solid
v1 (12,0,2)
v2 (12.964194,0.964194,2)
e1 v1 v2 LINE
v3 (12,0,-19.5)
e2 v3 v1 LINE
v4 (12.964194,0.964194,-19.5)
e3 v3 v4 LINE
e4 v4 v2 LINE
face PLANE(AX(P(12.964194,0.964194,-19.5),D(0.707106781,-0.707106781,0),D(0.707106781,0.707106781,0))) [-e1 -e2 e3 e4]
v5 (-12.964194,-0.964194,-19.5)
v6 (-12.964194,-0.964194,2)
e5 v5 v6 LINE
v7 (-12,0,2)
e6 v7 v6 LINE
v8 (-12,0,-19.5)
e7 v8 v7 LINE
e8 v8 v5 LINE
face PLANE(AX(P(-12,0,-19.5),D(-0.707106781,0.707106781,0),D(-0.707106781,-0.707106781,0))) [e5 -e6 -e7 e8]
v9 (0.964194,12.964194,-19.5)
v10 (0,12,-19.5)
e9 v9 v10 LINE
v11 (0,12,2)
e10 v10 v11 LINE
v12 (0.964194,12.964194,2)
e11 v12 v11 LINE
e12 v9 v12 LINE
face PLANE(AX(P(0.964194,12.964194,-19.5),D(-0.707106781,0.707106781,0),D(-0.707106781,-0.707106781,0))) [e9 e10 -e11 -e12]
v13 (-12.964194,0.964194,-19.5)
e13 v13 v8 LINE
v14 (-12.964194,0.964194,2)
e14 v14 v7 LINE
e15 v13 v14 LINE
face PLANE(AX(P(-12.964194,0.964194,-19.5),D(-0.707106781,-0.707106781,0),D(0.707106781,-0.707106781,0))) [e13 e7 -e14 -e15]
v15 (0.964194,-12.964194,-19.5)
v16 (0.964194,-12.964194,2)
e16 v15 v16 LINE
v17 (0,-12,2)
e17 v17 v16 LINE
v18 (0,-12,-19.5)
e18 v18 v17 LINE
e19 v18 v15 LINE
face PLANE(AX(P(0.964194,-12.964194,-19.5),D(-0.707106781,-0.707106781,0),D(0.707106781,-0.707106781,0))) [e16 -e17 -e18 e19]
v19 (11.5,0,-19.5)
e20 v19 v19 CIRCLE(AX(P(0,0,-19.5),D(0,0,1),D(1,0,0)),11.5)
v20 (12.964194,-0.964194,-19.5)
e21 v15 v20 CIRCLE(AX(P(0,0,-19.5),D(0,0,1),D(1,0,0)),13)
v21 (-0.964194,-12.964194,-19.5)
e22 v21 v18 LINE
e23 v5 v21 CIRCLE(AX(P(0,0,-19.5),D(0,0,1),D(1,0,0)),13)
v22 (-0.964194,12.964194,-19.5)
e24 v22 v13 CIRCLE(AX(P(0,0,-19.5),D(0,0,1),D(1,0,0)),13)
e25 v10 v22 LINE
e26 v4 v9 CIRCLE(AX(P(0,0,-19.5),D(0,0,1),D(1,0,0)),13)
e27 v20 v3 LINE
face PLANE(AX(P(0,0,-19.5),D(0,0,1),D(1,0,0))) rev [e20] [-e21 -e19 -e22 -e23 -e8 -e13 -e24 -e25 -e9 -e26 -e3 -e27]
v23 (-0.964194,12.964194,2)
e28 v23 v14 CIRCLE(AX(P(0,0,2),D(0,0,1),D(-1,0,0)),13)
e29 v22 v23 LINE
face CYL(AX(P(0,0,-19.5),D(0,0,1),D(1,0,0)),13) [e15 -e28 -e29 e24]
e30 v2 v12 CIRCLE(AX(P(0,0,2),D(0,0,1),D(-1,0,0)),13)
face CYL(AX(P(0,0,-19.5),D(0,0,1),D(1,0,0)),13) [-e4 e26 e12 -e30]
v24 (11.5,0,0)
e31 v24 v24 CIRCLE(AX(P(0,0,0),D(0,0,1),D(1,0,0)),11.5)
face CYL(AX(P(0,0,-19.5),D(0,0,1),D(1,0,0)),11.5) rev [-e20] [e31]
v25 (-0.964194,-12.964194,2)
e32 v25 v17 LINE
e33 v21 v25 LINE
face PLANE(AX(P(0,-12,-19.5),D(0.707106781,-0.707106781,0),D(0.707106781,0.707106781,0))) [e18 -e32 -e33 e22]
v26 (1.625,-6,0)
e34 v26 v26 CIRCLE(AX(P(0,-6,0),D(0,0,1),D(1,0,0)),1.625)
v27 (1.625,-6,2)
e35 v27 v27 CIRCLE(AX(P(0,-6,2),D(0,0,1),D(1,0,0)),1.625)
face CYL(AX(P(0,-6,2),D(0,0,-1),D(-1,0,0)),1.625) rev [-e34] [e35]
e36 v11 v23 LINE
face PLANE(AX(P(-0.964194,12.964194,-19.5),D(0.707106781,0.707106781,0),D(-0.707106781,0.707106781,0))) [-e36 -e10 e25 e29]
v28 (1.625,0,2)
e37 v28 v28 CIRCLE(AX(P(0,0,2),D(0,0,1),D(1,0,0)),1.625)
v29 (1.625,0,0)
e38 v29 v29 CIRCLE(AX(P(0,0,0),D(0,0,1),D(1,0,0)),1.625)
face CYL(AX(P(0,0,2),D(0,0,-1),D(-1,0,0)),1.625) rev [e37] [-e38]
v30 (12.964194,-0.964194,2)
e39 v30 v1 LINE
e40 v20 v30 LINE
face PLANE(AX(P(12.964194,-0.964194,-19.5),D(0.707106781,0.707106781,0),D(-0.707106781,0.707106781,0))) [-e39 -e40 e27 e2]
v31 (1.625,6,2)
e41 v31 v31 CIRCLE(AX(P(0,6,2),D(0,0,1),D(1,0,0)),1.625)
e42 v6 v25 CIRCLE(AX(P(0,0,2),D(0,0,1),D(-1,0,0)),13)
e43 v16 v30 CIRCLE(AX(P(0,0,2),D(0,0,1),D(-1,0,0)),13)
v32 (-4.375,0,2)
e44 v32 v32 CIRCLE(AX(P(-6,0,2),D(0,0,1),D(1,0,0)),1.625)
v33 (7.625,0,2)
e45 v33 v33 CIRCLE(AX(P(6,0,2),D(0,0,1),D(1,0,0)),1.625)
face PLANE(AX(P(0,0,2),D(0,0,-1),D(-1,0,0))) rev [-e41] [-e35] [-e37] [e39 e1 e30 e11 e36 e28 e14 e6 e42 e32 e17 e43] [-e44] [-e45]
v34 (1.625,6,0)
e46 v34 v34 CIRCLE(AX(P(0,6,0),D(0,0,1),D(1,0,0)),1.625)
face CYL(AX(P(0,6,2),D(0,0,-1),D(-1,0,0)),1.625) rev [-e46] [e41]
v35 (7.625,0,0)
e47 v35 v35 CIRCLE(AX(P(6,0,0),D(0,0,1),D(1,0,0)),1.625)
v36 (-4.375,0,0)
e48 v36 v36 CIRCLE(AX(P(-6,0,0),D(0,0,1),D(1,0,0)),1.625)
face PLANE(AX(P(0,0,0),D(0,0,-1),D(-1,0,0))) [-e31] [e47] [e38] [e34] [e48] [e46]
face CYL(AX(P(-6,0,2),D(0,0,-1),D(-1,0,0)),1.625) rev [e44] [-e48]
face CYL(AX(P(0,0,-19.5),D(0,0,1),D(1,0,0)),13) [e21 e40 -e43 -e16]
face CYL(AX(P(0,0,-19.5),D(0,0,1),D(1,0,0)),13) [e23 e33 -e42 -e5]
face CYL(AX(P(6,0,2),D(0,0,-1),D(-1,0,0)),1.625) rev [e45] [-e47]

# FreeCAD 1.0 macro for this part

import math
import FreeCAD as App
import Part
import Sketcher

V = App.Vector
Q = App.Units.Quantity

doc = App.newDocument("Part")
body = doc.addObject("PartDesign::Body", "Body")

sketch1 = body.newObject("Sketcher::SketchObject", "Sketch")
sketch1.AttachmentSupport = (doc.getObject("XY_Plane"), [""])
sketch1.MapMode = "FlatFace"
sketch1.addGeometry(Part.LineSegment(V(1, 13, 0), V(0, 12, 0)), False)
sketch1.addGeometry(Part.LineSegment(V(0, 12, 0), V(-1, 13, 0)), False)
sketch1.addGeometry(Part.ArcOfCircle(Part.Circle(V(0, 0, 0), V(0, 0, 1), 13), math.radians(94), math.radians(176)), False)
sketch1.addGeometry(Part.LineSegment(V(-13, 1, 0), V(-12, 0, 0)), False)
sketch1.addGeometry(Part.LineSegment(V(-12, 0, 0), V(-13, -1, 0)), False)
sketch1.addGeometry(Part.ArcOfCircle(Part.Circle(V(0, 0, 0), V(0, 0, 1), 13), math.radians(-176), math.radians(-94)), False)
sketch1.addGeometry(Part.LineSegment(V(-1, -13, 0), V(0, -12, 0)), False)
sketch1.addGeometry(Part.LineSegment(V(0, -12, 0), V(1, -13, 0)), False)
sketch1.addGeometry(Part.ArcOfCircle(Part.Circle(V(0, 0, 0), V(0, 0, 1), 13), math.radians(-86), math.radians(-4)), False)
sketch1.addGeometry(Part.LineSegment(V(13, -1, 0), V(12, 0, 0)), False)
sketch1.addGeometry(Part.LineSegment(V(12, 0, 0), V(13, 1, 0)), False)
sketch1.addGeometry(Part.ArcOfCircle(Part.Circle(V(0, 0, 0), V(0, 0, 1), 13), math.radians(4), math.radians(86)), False)
sketch1.addGeometry(Part.Circle(V(0, 0, 0), V(0, 0, 1), 11.5), False)
sketch1.addConstraint(Sketcher.Constraint("Coincident", 0, 2, 1, 1))
sketch1.addConstraint(Sketcher.Constraint("Coincident", 1, 2, 2, 1))
sketch1.addConstraint(Sketcher.Constraint("Coincident", 2, 2, 3, 1))
sketch1.addConstraint(Sketcher.Constraint("Coincident", 3, 2, 4, 1))
sketch1.addConstraint(Sketcher.Constraint("Coincident", 4, 2, 5, 1))
sketch1.addConstraint(Sketcher.Constraint("Coincident", 5, 2, 6, 1))
sketch1.addConstraint(Sketcher.Constraint("Coincident", 6, 2, 7, 1))
sketch1.addConstraint(Sketcher.Constraint("Coincident", 7, 2, 8, 1))
sketch1.addConstraint(Sketcher.Constraint("Coincident", 8, 2, 9, 1))
sketch1.addConstraint(Sketcher.Constraint("Coincident", 9, 2, 10, 1))
sketch1.addConstraint(Sketcher.Constraint("Coincident", 10, 2, 11, 1))
sketch1.addConstraint(Sketcher.Constraint("Coincident", 11, 2, 0, 1))
sketch1.addConstraint(Sketcher.Constraint("Coincident", 2, 3, -1, 1))
sketch1.addConstraint(Sketcher.Constraint("Coincident", 5, 3, -1, 1))
sketch1.addConstraint(Sketcher.Constraint("Coincident", 8, 3, -1, 1))
sketch1.addConstraint(Sketcher.Constraint("Coincident", 11, 3, -1, 1))
sketch1.addConstraint(Sketcher.Constraint("Coincident", 12, 3, -1, 1))
sketch1.addConstraint(Sketcher.Constraint("Equal", 2, 5))
sketch1.addConstraint(Sketcher.Constraint("Equal", 5, 8))
sketch1.addConstraint(Sketcher.Constraint("Equal", 8, 11))
sketch1.addConstraint(Sketcher.Constraint("Symmetric", 0, 2, 6, 2, -1, 1))
sketch1.addConstraint(Sketcher.Constraint("Symmetric", 3, 2, 9, 2, -1, 1))
sketch1.addConstraint(Sketcher.Constraint("PointOnObject", 0, 2, -2))
sketch1.addConstraint(Sketcher.Constraint("PointOnObject", 3, 2, -1))
sketch1.addConstraint(Sketcher.Constraint("Perpendicular", 0, 1))
sketch1.addConstraint(Sketcher.Constraint("Parallel", 1, 3))
sketch1.addConstraint(Sketcher.Constraint("Perpendicular", 3, 4))
sketch1.addConstraint(Sketcher.Constraint("Parallel", 4, 6))
sketch1.addConstraint(Sketcher.Constraint("Perpendicular", 6, 7))
sketch1.addConstraint(Sketcher.Constraint("Parallel", 7, 9))
sketch1.addConstraint(Sketcher.Constraint("Perpendicular", 9, 10))
sketch1.addConstraint(Sketcher.Constraint("Horizontal", 5, 2, 7, 2))
sketch1.addConstraint(Sketcher.Constraint("Equal", 1, 3))
sketch1.addConstraint(Sketcher.Constraint("Diameter", 12, Q("23 mm")))
sketch1.addConstraint(Sketcher.Constraint("Radius", 2, Q("13 mm")))
sketch1.addConstraint(Sketcher.Constraint("DistanceY", -1, 1, 0, 2, Q("12 mm")))
pad1 = body.newObject("PartDesign::Pad", "Pad")
pad1.Profile = sketch1
pad1.Length = 19.5
pad1.Reversed = True

sketch2 = body.newObject("Sketcher::SketchObject", "Sketch001")
sketch2.AttachmentSupport = (doc.getObject("XY_Plane"), [""])
sketch2.MapMode = "FlatFace"
sketch2.AttachmentOffset = App.Placement(V(0, 0, 2), App.Rotation())
sketch2.addGeometry(Part.LineSegment(V(-12, 0, 0), V(-13, -1, 0)), False)
sketch2.addGeometry(Part.ArcOfCircle(Part.Circle(V(0, 0, 0), V(0, 0, 1), 13), math.radians(-176), math.radians(-94)), False)
sketch2.addGeometry(Part.LineSegment(V(-1, -13, 0), V(0, -12, 0)), False)
sketch2.addGeometry(Part.LineSegment(V(0, -12, 0), V(1, -13, 0)), False)
sketch2.addGeometry(Part.ArcOfCircle(Part.Circle(V(0, 0, 0), V(0, 0, 1), 13), math.radians(-86), math.radians(-4)), False)
sketch2.addGeometry(Part.LineSegment(V(13, -1, 0), V(12, 0, 0)), False)
sketch2.addGeometry(Part.LineSegment(V(12, 0, 0), V(13, 1, 0)), False)
sketch2.addGeometry(Part.ArcOfCircle(Part.Circle(V(0, 0, 0), V(0, 0, 1), 13), math.radians(4), math.radians(86)), False)
sketch2.addGeometry(Part.LineSegment(V(1, 13, 0), V(0, 12, 0)), False)
sketch2.addGeometry(Part.LineSegment(V(0, 12, 0), V(-1, 13, 0)), False)
sketch2.addGeometry(Part.ArcOfCircle(Part.Circle(V(0, 0, 0), V(0, 0, 1), 13), math.radians(94), math.radians(176)), False)
sketch2.addGeometry(Part.LineSegment(V(-13, 1, 0), V(-12, 0, 0)), False)
sketch2.addGeometry(Part.Circle(V(0, -6, 0), V(0, 0, 1), 1.6), False)
sketch2.addGeometry(Part.Circle(V(6, 0, 0), V(0, 0, 1), 1.6), False)
sketch2.addGeometry(Part.Circle(V(0, 0, 0), V(0, 0, 1), 1.6), False)
sketch2.addGeometry(Part.Circle(V(-6, 0, 0), V(0, 0, 1), 1.6), False)
sketch2.addGeometry(Part.Circle(V(0, 6, 0), V(0, 0, 1), 1.6), False)
sketch2.addConstraint(Sketcher.Constraint("Coincident", 0, 2, 1, 1))
sketch2.addConstraint(Sketcher.Constraint("Coincident", 1, 2, 2, 1))
sketch2.addConstraint(Sketcher.Constraint("Coincident", 2, 2, 3, 1))
sketch2.addConstraint(Sketcher.Constraint("Coincident", 3, 2, 4, 1))
sketch2.addConstraint(Sketcher.Constraint("Coincident", 4, 2, 5, 1))
sketch2.addConstraint(Sketcher.Constraint("Coincident", 5, 2, 6, 1))
sketch2.addConstraint(Sketcher.Constraint("Coincident", 6, 2, 7, 1))
sketch2.addConstraint(Sketcher.Constraint("Coincident", 7, 2, 8, 1))
sketch2.addConstraint(Sketcher.Constraint("Coincident", 8, 2, 9, 1))
sketch2.addConstraint(Sketcher.Constraint("Coincident", 9, 2, 10, 1))
sketch2.addConstraint(Sketcher.Constraint("Coincident", 10, 2, 11, 1))
sketch2.addConstraint(Sketcher.Constraint("Coincident", 11, 2, 0, 1))
sketch2.addConstraint(Sketcher.Constraint("Coincident", 1, 3, -1, 1))
sketch2.addConstraint(Sketcher.Constraint("Coincident", 4, 3, -1, 1))
sketch2.addConstraint(Sketcher.Constraint("Coincident", 7, 3, -1, 1))
sketch2.addConstraint(Sketcher.Constraint("Coincident", 10, 3, -1, 1))
sketch2.addConstraint(Sketcher.Constraint("Coincident", 14, 3, -1, 1))
sketch2.addConstraint(Sketcher.Constraint("Equal", 1, 4))
sketch2.addConstraint(Sketcher.Constraint("Equal", 4, 7))
sketch2.addConstraint(Sketcher.Constraint("Equal", 7, 10))
sketch2.addConstraint(Sketcher.Constraint("Equal", 12, 13))
sketch2.addConstraint(Sketcher.Constraint("Equal", 13, 14))
sketch2.addConstraint(Sketcher.Constraint("Equal", 14, 15))
sketch2.addConstraint(Sketcher.Constraint("Equal", 15, 16))
sketch2.addConstraint(Sketcher.Constraint("Symmetric", 13, 3, 15, 3, -1, 1))
sketch2.addConstraint(Sketcher.Constraint("Symmetric", 12, 3, 16, 3, -1, 1))
sketch2.addConstraint(Sketcher.Constraint("Symmetric", 2, 2, 8, 2, -1, 1))
sketch2.addConstraint(Sketcher.Constraint("Symmetric", 5, 2, 11, 2, -1, 1))
sketch2.addConstraint(Sketcher.Constraint("PointOnObject", 12, 3, -2))
sketch2.addConstraint(Sketcher.Constraint("PointOnObject", 13, 3, -1))
sketch2.addConstraint(Sketcher.Constraint("PointOnObject", 2, 2, -2))
sketch2.addConstraint(Sketcher.Constraint("PointOnObject", 5, 2, -1))
sketch2.addConstraint(Sketcher.Constraint("Parallel", 0, 2))
sketch2.addConstraint(Sketcher.Constraint("Perpendicular", 2, 3))
sketch2.addConstraint(Sketcher.Constraint("Parallel", 3, 5))
sketch2.addConstraint(Sketcher.Constraint("Perpendicular", 5, 6))
sketch2.addConstraint(Sketcher.Constraint("Parallel", 6, 8))
sketch2.addConstraint(Sketcher.Constraint("Perpendicular", 8, 9))
sketch2.addConstraint(Sketcher.Constraint("Parallel", 9, 11))
sketch2.addConstraint(Sketcher.Constraint("Horizontal", 1, 2, 3, 2))
sketch2.addConstraint(Sketcher.Constraint("Equal", 0, 2))
sketch2.addConstraint(Sketcher.Constraint("Radius", 1, Q("13 mm")))
sketch2.addConstraint(Sketcher.Constraint("Diameter", 12, Q("3.25 mm")))
sketch2.addConstraint(Sketcher.Constraint("DistanceY", 12, 3, -1, 1, Q("6 mm")))
sketch2.addConstraint(Sketcher.Constraint("DistanceX", -1, 1, 13, 3, Q("6 mm")))
sketch2.addConstraint(Sketcher.Constraint("DistanceY", 2, 2, -1, 1, Q("12 mm")))
pad2 = body.newObject("PartDesign::Pad", "Pad001")
pad2.Profile = sketch2
pad2.Length = 2
pad2.Reversed = True

doc.recompute()
